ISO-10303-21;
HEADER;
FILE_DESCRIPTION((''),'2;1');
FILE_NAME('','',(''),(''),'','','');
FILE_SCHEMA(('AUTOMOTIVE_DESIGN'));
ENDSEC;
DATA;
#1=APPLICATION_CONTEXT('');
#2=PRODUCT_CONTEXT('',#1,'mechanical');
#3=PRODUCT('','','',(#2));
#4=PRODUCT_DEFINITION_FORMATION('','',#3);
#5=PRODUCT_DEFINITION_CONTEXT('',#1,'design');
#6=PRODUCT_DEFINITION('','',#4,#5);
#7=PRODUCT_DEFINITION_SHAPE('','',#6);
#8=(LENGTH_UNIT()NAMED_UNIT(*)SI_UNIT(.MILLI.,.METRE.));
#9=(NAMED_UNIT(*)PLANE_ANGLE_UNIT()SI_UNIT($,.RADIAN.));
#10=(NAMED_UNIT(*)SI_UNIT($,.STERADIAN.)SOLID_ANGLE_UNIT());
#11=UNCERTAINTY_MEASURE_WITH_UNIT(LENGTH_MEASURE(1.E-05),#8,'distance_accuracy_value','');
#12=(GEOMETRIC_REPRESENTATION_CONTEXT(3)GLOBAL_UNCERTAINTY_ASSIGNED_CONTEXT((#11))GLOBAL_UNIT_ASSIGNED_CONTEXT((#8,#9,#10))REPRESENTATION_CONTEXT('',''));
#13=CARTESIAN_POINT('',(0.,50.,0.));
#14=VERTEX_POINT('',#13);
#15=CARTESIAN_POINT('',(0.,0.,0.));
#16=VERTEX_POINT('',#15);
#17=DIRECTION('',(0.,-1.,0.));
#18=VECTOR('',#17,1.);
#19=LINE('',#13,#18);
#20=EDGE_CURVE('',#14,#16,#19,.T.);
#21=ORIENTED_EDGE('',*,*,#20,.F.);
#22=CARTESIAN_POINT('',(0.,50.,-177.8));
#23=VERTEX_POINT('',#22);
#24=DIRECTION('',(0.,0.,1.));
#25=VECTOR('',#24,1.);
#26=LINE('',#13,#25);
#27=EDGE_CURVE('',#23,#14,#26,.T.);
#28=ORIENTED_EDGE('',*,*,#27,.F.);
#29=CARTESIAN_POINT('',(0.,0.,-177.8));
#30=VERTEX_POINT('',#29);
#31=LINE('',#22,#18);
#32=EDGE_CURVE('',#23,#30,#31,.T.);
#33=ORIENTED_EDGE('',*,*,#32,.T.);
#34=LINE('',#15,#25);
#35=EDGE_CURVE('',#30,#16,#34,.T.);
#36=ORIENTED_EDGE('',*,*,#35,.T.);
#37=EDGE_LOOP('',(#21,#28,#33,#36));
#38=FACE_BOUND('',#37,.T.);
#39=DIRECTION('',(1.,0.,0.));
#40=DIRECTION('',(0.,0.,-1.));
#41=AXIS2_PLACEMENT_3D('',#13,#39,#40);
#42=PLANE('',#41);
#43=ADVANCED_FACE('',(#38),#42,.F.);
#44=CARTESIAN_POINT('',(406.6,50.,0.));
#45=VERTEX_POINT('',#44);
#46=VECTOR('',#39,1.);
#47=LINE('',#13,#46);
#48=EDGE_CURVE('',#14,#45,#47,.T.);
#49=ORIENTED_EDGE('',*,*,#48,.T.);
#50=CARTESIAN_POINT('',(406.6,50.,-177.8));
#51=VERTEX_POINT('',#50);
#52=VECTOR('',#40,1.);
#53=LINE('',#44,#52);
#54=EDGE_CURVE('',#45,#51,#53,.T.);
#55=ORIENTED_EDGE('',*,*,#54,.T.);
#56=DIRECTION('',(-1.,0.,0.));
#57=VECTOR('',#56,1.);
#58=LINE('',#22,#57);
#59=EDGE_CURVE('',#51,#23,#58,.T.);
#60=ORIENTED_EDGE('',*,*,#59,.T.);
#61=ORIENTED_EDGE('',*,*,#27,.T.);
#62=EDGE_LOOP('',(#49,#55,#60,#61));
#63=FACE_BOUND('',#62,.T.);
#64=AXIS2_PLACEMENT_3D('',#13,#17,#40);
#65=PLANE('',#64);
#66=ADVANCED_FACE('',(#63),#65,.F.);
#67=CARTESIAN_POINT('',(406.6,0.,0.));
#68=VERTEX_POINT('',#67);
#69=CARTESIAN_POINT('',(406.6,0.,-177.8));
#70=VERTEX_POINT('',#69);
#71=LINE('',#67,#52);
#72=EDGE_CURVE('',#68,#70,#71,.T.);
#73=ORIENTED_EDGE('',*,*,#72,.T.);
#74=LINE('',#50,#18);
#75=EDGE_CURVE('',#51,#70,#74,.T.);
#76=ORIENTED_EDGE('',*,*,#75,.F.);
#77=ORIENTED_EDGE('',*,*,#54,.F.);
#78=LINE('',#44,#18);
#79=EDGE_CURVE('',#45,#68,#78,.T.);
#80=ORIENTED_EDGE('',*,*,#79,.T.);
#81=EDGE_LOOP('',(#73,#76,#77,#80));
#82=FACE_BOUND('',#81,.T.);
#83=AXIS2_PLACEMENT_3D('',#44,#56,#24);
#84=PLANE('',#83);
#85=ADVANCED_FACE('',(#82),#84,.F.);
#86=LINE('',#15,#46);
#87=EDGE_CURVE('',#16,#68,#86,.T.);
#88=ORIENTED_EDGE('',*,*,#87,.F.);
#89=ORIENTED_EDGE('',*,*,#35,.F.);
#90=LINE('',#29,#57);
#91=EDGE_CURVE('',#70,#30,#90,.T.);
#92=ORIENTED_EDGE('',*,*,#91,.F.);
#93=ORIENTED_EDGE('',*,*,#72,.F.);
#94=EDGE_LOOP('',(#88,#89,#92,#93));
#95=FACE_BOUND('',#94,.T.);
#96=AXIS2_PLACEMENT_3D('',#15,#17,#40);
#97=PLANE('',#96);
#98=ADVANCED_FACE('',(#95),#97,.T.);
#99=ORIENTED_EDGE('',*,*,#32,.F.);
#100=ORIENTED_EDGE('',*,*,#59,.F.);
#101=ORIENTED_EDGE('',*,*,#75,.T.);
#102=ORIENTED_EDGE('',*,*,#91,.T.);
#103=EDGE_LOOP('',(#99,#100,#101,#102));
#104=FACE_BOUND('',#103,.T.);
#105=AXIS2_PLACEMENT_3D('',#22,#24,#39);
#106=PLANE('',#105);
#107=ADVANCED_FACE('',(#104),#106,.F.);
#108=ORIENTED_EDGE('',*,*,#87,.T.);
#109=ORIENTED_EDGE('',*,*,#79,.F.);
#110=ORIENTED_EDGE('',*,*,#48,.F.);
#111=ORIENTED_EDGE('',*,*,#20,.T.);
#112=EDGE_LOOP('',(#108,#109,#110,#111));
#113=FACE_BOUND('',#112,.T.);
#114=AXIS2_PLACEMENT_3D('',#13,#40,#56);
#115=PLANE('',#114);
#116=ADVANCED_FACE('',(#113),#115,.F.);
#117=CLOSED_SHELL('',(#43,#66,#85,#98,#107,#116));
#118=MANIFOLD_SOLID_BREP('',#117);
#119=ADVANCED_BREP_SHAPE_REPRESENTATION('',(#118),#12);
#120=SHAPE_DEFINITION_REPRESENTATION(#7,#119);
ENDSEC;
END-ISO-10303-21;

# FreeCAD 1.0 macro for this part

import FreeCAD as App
import Part
import Sketcher

V = App.Vector


def add_polygon(sketch, points):
    """Adds a closed chain of lines whose ends are joined by coincident constraints."""
    first, n = sketch.GeometryCount, len(points)
    for a, b in zip(points, points[1:] + points[:1]):
        sketch.addGeometry(Part.LineSegment(App.Vector(*a, 0), App.Vector(*b, 0)), False)
    for i in range(n):
        sketch.addConstraint(Sketcher.Constraint("Coincident", first + i, 2, first + (i + 1) % n, 1))

doc = App.newDocument("Part")
params = doc.addObject("Spreadsheet::Sheet", "Params")
for row, (alias, value) in enumerate([
    ("sketch1_width", "406.6 mm"),
    ("sketch1_height", "177.8 mm"),
    ("pad1_length", "50 mm"),
], start=1):
    params.set(f"A{row}", alias)
    params.set(f"B{row}", "=" + value)
    params.setAlias(f"B{row}", alias)

body = doc.addObject("PartDesign::Body", "Body")

sketch1 = body.newObject("Sketcher::SketchObject", "Sketch")
sketch1.AttachmentSupport = (doc.getObject("XZ_Plane"), [""])
sketch1.MapMode = "FlatFace"
add_polygon(sketch1, [(0, -178), (0, 0), (407, 0), (407, -178)])
sketch1.addConstraint([
    Sketcher.Constraint("Vertical", 0),
    Sketcher.Constraint("Horizontal", 1),
    Sketcher.Constraint("Vertical", 2),
    Sketcher.Constraint("Horizontal", 3),
    Sketcher.Constraint("Coincident", 0, 2, -1, 1),
    Sketcher.Constraint("DistanceX", 1, 1, 1, 2, 406.6),
    Sketcher.Constraint("DistanceY", 0, 1, 0, 2, 177.8),
])
sketch1.setExpression("Constraints[9]", "Params.sketch1_width")
sketch1.setExpression("Constraints[10]", "Params.sketch1_height")
pad1 = body.newObject("PartDesign::Pad", "Pad")
pad1.Profile = sketch1
pad1.setExpression("Length", "Params.pad1_length")
pad1.Reversed = True

doc.recompute()
